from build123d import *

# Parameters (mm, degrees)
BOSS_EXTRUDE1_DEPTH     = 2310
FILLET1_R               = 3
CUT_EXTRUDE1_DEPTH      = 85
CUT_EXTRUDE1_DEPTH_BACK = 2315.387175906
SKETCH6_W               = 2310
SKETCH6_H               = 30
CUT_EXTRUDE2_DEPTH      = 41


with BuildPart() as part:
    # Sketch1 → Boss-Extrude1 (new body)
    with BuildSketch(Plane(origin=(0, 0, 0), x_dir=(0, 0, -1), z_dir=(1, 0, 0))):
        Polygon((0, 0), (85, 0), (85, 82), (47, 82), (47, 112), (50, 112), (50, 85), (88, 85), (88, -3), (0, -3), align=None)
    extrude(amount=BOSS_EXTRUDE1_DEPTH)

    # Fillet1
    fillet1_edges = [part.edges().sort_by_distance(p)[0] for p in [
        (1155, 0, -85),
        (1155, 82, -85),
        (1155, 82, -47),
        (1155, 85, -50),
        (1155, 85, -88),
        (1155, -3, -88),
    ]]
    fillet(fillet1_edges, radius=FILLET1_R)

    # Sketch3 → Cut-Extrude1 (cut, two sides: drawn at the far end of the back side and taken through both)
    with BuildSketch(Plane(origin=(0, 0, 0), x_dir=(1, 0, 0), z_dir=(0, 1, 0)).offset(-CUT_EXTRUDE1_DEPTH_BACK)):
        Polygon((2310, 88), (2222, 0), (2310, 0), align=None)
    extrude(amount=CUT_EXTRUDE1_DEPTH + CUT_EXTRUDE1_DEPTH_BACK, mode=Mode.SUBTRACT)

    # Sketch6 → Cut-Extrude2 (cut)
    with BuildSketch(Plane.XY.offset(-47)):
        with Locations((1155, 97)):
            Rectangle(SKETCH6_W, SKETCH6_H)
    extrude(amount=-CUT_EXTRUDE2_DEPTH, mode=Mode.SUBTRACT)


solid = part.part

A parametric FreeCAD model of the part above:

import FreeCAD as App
import Part
import Sketcher


def edges_at(feature, points):
    """Names of the edges that pass closest to the given points."""
    edges = feature.Shape.Edges
    near = lambda p: min(range(len(edges)), key=lambda i: edges[i].distToShape(Part.Vertex(*p))[0])
    return sorted({f"Edge{near(p) + 1}" for p in points})

doc = App.newDocument("Part")
body = doc.addObject("PartDesign::Body", "Body")

# Sketch on YZ plane
sketch1 = doc.addObject("Sketcher::SketchObject", "Sketch")
body.addObject(sketch1)
sketch1.AttachmentSupport = (doc.YZ_Plane, [""])
sketch1.MapMode = "FlatFace"
sketch1.addGeometry([
    Part.LineSegment(App.Vector(0, -85, 0), App.Vector(0, 0, 0)),  # 0
    Part.LineSegment(App.Vector(0, 0, 0), App.Vector(-3, 0, 0)),  # 1
    Part.LineSegment(App.Vector(-3, 0, 0), App.Vector(-3, -88, 0)),  # 2
    Part.LineSegment(App.Vector(-3, -88, 0), App.Vector(85, -88, 0)),  # 3
    Part.LineSegment(App.Vector(85, -88, 0), App.Vector(85, -50, 0)),  # 4
    Part.LineSegment(App.Vector(85, -50, 0), App.Vector(112, -50, 0)),  # 5
    Part.LineSegment(App.Vector(112, -50, 0), App.Vector(112, -47, 0)),  # 6
    Part.LineSegment(App.Vector(112, -47, 0), App.Vector(82, -47, 0)),  # 7
    Part.LineSegment(App.Vector(82, -47, 0), App.Vector(82, -85, 0)),  # 8
    Part.LineSegment(App.Vector(82, -85, 0), App.Vector(0, -85, 0)),  # 9
], False)
sketch1.addConstraint([
    Sketcher.Constraint("Coincident", 0, 2, 1, 1),
    Sketcher.Constraint("Coincident", 1, 2, 2, 1),
    Sketcher.Constraint("Coincident", 2, 2, 3, 1),
    Sketcher.Constraint("Coincident", 3, 2, 4, 1),
    Sketcher.Constraint("Coincident", 4, 2, 5, 1),
    Sketcher.Constraint("Coincident", 5, 2, 6, 1),
    Sketcher.Constraint("Coincident", 6, 2, 7, 1),
    Sketcher.Constraint("Coincident", 7, 2, 8, 1),
    Sketcher.Constraint("Coincident", 8, 2, 9, 1),
    Sketcher.Constraint("Coincident", 9, 2, 0, 1),
    Sketcher.Constraint("Vertical", 0),
    Sketcher.Constraint("Horizontal", 1),
    Sketcher.Constraint("Vertical", 2),
    Sketcher.Constraint("Horizontal", 3),
    Sketcher.Constraint("Vertical", 4),
    Sketcher.Constraint("Horizontal", 5),
    Sketcher.Constraint("Vertical", 6),
    Sketcher.Constraint("Horizontal", 7),
    Sketcher.Constraint("Vertical", 8),
    Sketcher.Constraint("Horizontal", 9),
    Sketcher.Constraint("Coincident", 0, 2, -1, 1),
    Sketcher.Constraint("Equal", 3, 2),
    Sketcher.Constraint("Equal", 1, 6),
    Sketcher.Constraint("Equal", 4, 8),
    Sketcher.Constraint("DistanceX", 1, 2, 1, 1, 3.0),
    Sketcher.Constraint("DistanceX", 3, 1, 3, 2, 88.0),
    Sketcher.Constraint("DistanceX", 5, 1, 5, 2, 27.0),
    Sketcher.Constraint("DistanceX", 7, 2, 7, 1, 30.0),
    Sketcher.Constraint("DistanceY", 4, 1, 4, 2, 38.0),
])
pad1 = doc.addObject("PartDesign::Pad", "Pad")
body.addObject(pad1)
pad1.Profile = sketch1
pad1.Length = 2310
doc.recompute()

fillet = doc.addObject("PartDesign::Fillet", "Fillet")
body.addObject(fillet)
fillet.Base = (pad1, edges_at(pad1, [
    (1155, 0, -85),
    (1155, 82, -85),
    (1155, 82, -47),
    (1155, 85, -50),
    (1155, 85, -88),
    (1155, -3, -88),
]))
fillet.Radius = 3

# Sketch on XZ plane
sketch2 = doc.addObject("Sketcher::SketchObject", "Sketch001")
body.addObject(sketch2)
sketch2.AttachmentSupport = (doc.XZ_Plane, [""])
sketch2.MapMode = "FlatFace"
sketch2.addGeometry([
    Part.LineSegment(App.Vector(2310, -88, 0), App.Vector(2222, 0, 0)),
    Part.LineSegment(App.Vector(2222, 0, 0), App.Vector(2310, 0, 0)),
    Part.LineSegment(App.Vector(2310, 0, 0), App.Vector(2310, -88, 0)),
], False)
sketch2.addConstraint([
    Sketcher.Constraint("Coincident", 0, 2, 1, 1),
    Sketcher.Constraint("Coincident", 1, 2, 2, 1),
    Sketcher.Constraint("Coincident", 2, 2, 0, 1),
    Sketcher.Constraint("Horizontal", 1),
    Sketcher.Constraint("Vertical", 2),
    Sketcher.Constraint("PointOnObject", 0, 2, -1),
    Sketcher.Constraint("Equal", 1, 2),
    Sketcher.Constraint("DistanceX", 1, 1, 1, 2, 88.0),
    Sketcher.Constraint("DistanceX", -1, 1, 0, 2, 2222.0),
])
pocket1 = doc.addObject("PartDesign::Pocket", "Pocket")
body.addObject(pocket1)
pocket1.Profile = sketch2
pocket1.Type = "TwoLengths"
pocket1.Length = 85
pocket1.Length2 = 2315.387176

# Sketch on XY plane
sketch3 = doc.addObject("Sketcher::SketchObject", "Sketch002")
body.addObject(sketch3)
sketch3.AttachmentSupport = (doc.XY_Plane, [""])
sketch3.MapMode = "FlatFace"
sketch3.AttachmentOffset = App.Placement(App.Vector(0, 0, -47), App.Rotation())
sketch3.addGeometry([
    Part.LineSegment(App.Vector(0, 112, 0), App.Vector(0, 82, 0)),
    Part.LineSegment(App.Vector(0, 82, 0), App.Vector(2310, 82, 0)),
    Part.LineSegment(App.Vector(2310, 82, 0), App.Vector(2310, 112, 0)),
    Part.LineSegment(App.Vector(2310, 112, 0), App.Vector(0, 112, 0)),
], False)
sketch3.addConstraint([
    Sketcher.Constraint("Coincident", 0, 2, 1, 1),
    Sketcher.Constraint("Coincident", 1, 2, 2, 1),
    Sketcher.Constraint("Coincident", 2, 2, 3, 1),
    Sketcher.Constraint("Coincident", 3, 2, 0, 1),
    Sketcher.Constraint("Vertical", 0),
    Sketcher.Constraint("Horizontal", 1),
    Sketcher.Constraint("Vertical", 2),
    Sketcher.Constraint("Horizontal", 3),
    Sketcher.Constraint("PointOnObject", 0, 2, -2),
    Sketcher.Constraint("DistanceX", 1, 1, 1, 2, 2310.0),
    Sketcher.Constraint("DistanceY", 0, 2, 0, 1, 30.0),
    Sketcher.Constraint("DistanceY", -1, 1, 0, 2, 82.0),
])
pocket2 = doc.addObject("PartDesign::Pocket", "Pocket001")
body.addObject(pocket2)
pocket2.Profile = sketch3
pocket2.Length = 41

doc.recompute()
